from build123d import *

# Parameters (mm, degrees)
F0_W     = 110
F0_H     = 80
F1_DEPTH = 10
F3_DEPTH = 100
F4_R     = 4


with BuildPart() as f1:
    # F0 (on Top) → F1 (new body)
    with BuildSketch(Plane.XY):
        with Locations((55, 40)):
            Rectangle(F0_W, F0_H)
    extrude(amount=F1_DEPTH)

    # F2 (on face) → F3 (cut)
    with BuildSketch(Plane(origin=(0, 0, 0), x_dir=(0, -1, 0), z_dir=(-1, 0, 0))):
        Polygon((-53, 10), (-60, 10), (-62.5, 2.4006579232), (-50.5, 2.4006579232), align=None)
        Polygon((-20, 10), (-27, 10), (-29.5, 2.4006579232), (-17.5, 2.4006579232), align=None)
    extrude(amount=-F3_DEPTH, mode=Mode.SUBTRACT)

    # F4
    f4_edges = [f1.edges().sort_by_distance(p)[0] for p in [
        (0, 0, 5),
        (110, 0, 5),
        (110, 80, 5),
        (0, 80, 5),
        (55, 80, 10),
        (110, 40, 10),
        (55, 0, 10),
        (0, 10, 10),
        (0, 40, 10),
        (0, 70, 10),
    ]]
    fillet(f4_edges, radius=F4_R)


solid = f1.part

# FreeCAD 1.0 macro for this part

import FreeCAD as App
import Part
import Sketcher
from FreeCAD import Vector
Q = App.Units.Quantity


def edges_at(feature, points):
    """Names of the edges that pass closest to the given points."""
    edges = feature.Shape.Edges
    near = lambda p: min(range(len(edges)), key=lambda i: edges[i].distToShape(Part.Vertex(*p))[0])
    return sorted({f"Edge{near(p) + 1}" for p in points})

doc = App.newDocument("Part")
params = doc.addObject("Spreadsheet::Sheet", "Params")
for row, (alias, value) in enumerate([
    ("sketch1_width", "110 mm"),
    ("sketch1_height", "80 mm"),
    ("pad1_length", "10 mm"),
    ("sketch2_width", "7 mm"),
    ("sketch2_width2", "12 mm"),
    ("sketch2_length", "8 mm"),
    ("pocket1_length", "100 mm"),
    ("fillet_radius", "4 mm"),
], start=1):
    params.set(f"A{row}", alias)
    params.set(f"B{row}", "=" + value)
    params.setAlias(f"B{row}", alias)

body = doc.addObject("PartDesign::Body", "Body")

# Sketch on XY plane
sketch1 = body.newObject("Sketcher::SketchObject", "Sketch")
sketch1.AttachmentSupport = (doc.getObject("XY_Plane"), [""])
sketch1.MapMode = "FlatFace"
sketch1.addGeometry([
    Part.LineSegment(Vector(0, 80, 0), Vector(0, 0, 0)),
    Part.LineSegment(Vector(0, 0, 0), Vector(110, 0, 0)),
    Part.LineSegment(Vector(110, 0, 0), Vector(110, 80, 0)),
    Part.LineSegment(Vector(110, 80, 0), Vector(0, 80, 0)),
], False)
sketch1.addConstraint([
    Sketcher.Constraint("Coincident", 0, 2, 1, 1),
    Sketcher.Constraint("Coincident", 1, 2, 2, 1),
    Sketcher.Constraint("Coincident", 2, 2, 3, 1),
    Sketcher.Constraint("Coincident", 3, 2, 0, 1),
    Sketcher.Constraint("Vertical", 0),
    Sketcher.Constraint("Horizontal", 1),
    Sketcher.Constraint("Vertical", 2),
    Sketcher.Constraint("Horizontal", 3),
    Sketcher.Constraint("Coincident", 0, 2, -1, 1),
    Sketcher.Constraint("DistanceX", 1, 1, 1, 2, Q("110 mm")),
    Sketcher.Constraint("DistanceY", 0, 2, 0, 1, Q("80 mm")),
])
sketch1.setExpression("Constraints[9]", "Params.sketch1_width")
sketch1.setExpression("Constraints[10]", "Params.sketch1_height")
pad1 = body.newObject("PartDesign::Pad", "Pad")
pad1.Profile = sketch1
pad1.setExpression("Length", "Params.pad1_length")

# Sketch on YZ plane
sketch2 = body.newObject("Sketcher::SketchObject", "Sketch001")
sketch2.AttachmentSupport = (doc.getObject("YZ_Plane"), [""])
sketch2.MapMode = "FlatFace"
sketch2.addGeometry([
    Part.LineSegment(Vector(53, 10, 0), Vector(60, 10, 0)),  # 0
    Part.LineSegment(Vector(60, 10, 0), Vector(62.5, 2.400658, 0)),  # 1
    Part.LineSegment(Vector(62.5, 2.400658, 0), Vector(50.5, 2.400658, 0)),  # 2
    Part.LineSegment(Vector(50.5, 2.400658, 0), Vector(53, 10, 0)),  # 3
    Part.LineSegment(Vector(20, 10, 0), Vector(27, 10, 0)),  # 4
    Part.LineSegment(Vector(27, 10, 0), Vector(29.5, 2.400658, 0)),  # 5
    Part.LineSegment(Vector(29.5, 2.400658, 0), Vector(17.5, 2.400658, 0)),  # 6
    Part.LineSegment(Vector(17.5, 2.400658, 0), Vector(20, 10, 0)),  # 7
], False)
sketch2.addConstraint([
    Sketcher.Constraint("Coincident", 0, 2, 1, 1),
    Sketcher.Constraint("Coincident", 1, 2, 2, 1),
    Sketcher.Constraint("Coincident", 2, 2, 3, 1),
    Sketcher.Constraint("Coincident", 3, 2, 0, 1),
    Sketcher.Constraint("Coincident", 4, 2, 5, 1),
    Sketcher.Constraint("Coincident", 5, 2, 6, 1),
    Sketcher.Constraint("Coincident", 6, 2, 7, 1),
    Sketcher.Constraint("Coincident", 7, 2, 4, 1),
    Sketcher.Constraint("Horizontal", 0),
    Sketcher.Constraint("Horizontal", 2),
    Sketcher.Constraint("Horizontal", 4),
    Sketcher.Constraint("Horizontal", 6),
    Sketcher.Constraint("Parallel", 1, 5),
    Sketcher.Constraint("Parallel", 3, 7),
    Sketcher.Constraint("Horizontal", 3, 2, 4, 2),
    Sketcher.Constraint("Horizontal", 2, 2, 5, 2),
    Sketcher.Constraint("Equal", 0, 4),
    Sketcher.Constraint("Equal", 1, 3),
    Sketcher.Constraint("DistanceX", 0, 1, 0, 2, Q("7 mm")),
    Sketcher.Constraint("DistanceX", 2, 2, 2, 1, Q("12 mm")),
    Sketcher.Constraint("Distance", 1, Q("8 mm")),
    Sketcher.Constraint("DistanceX", -1, 1, 0, 2, Q("60 mm")),
    Sketcher.Constraint("DistanceY", -1, 1, 0, 2, Q("10 mm")),
    Sketcher.Constraint("DistanceX", -1, 1, 4, 2, Q("27 mm")),
])
sketch2.setExpression("Constraints[18]", "Params.sketch2_width")
sketch2.setExpression("Constraints[19]", "Params.sketch2_width2")
sketch2.setExpression("Constraints[20]", "Params.sketch2_length")
pocket1 = body.newObject("PartDesign::Pocket", "Pocket")
pocket1.Profile = sketch2
pocket1.setExpression("Length", "Params.pocket1_length")
pocket1.Reversed = True
doc.recompute()

fillet = body.newObject("PartDesign::Fillet", "Fillet")
fillet.Base = (pocket1, edges_at(pocket1, [
    (0, 0, 5),
    (110, 0, 5),
    (110, 80, 5),
    (0, 80, 5),
    (55, 80, 10),
    (110, 40, 10),
    (55, 0, 10),
    (0, 10, 10),
    (0, 40, 10),
    (0, 70, 10),
]))
fillet.setExpression("Radius", "Params.fillet_radius")

doc.recompute()
